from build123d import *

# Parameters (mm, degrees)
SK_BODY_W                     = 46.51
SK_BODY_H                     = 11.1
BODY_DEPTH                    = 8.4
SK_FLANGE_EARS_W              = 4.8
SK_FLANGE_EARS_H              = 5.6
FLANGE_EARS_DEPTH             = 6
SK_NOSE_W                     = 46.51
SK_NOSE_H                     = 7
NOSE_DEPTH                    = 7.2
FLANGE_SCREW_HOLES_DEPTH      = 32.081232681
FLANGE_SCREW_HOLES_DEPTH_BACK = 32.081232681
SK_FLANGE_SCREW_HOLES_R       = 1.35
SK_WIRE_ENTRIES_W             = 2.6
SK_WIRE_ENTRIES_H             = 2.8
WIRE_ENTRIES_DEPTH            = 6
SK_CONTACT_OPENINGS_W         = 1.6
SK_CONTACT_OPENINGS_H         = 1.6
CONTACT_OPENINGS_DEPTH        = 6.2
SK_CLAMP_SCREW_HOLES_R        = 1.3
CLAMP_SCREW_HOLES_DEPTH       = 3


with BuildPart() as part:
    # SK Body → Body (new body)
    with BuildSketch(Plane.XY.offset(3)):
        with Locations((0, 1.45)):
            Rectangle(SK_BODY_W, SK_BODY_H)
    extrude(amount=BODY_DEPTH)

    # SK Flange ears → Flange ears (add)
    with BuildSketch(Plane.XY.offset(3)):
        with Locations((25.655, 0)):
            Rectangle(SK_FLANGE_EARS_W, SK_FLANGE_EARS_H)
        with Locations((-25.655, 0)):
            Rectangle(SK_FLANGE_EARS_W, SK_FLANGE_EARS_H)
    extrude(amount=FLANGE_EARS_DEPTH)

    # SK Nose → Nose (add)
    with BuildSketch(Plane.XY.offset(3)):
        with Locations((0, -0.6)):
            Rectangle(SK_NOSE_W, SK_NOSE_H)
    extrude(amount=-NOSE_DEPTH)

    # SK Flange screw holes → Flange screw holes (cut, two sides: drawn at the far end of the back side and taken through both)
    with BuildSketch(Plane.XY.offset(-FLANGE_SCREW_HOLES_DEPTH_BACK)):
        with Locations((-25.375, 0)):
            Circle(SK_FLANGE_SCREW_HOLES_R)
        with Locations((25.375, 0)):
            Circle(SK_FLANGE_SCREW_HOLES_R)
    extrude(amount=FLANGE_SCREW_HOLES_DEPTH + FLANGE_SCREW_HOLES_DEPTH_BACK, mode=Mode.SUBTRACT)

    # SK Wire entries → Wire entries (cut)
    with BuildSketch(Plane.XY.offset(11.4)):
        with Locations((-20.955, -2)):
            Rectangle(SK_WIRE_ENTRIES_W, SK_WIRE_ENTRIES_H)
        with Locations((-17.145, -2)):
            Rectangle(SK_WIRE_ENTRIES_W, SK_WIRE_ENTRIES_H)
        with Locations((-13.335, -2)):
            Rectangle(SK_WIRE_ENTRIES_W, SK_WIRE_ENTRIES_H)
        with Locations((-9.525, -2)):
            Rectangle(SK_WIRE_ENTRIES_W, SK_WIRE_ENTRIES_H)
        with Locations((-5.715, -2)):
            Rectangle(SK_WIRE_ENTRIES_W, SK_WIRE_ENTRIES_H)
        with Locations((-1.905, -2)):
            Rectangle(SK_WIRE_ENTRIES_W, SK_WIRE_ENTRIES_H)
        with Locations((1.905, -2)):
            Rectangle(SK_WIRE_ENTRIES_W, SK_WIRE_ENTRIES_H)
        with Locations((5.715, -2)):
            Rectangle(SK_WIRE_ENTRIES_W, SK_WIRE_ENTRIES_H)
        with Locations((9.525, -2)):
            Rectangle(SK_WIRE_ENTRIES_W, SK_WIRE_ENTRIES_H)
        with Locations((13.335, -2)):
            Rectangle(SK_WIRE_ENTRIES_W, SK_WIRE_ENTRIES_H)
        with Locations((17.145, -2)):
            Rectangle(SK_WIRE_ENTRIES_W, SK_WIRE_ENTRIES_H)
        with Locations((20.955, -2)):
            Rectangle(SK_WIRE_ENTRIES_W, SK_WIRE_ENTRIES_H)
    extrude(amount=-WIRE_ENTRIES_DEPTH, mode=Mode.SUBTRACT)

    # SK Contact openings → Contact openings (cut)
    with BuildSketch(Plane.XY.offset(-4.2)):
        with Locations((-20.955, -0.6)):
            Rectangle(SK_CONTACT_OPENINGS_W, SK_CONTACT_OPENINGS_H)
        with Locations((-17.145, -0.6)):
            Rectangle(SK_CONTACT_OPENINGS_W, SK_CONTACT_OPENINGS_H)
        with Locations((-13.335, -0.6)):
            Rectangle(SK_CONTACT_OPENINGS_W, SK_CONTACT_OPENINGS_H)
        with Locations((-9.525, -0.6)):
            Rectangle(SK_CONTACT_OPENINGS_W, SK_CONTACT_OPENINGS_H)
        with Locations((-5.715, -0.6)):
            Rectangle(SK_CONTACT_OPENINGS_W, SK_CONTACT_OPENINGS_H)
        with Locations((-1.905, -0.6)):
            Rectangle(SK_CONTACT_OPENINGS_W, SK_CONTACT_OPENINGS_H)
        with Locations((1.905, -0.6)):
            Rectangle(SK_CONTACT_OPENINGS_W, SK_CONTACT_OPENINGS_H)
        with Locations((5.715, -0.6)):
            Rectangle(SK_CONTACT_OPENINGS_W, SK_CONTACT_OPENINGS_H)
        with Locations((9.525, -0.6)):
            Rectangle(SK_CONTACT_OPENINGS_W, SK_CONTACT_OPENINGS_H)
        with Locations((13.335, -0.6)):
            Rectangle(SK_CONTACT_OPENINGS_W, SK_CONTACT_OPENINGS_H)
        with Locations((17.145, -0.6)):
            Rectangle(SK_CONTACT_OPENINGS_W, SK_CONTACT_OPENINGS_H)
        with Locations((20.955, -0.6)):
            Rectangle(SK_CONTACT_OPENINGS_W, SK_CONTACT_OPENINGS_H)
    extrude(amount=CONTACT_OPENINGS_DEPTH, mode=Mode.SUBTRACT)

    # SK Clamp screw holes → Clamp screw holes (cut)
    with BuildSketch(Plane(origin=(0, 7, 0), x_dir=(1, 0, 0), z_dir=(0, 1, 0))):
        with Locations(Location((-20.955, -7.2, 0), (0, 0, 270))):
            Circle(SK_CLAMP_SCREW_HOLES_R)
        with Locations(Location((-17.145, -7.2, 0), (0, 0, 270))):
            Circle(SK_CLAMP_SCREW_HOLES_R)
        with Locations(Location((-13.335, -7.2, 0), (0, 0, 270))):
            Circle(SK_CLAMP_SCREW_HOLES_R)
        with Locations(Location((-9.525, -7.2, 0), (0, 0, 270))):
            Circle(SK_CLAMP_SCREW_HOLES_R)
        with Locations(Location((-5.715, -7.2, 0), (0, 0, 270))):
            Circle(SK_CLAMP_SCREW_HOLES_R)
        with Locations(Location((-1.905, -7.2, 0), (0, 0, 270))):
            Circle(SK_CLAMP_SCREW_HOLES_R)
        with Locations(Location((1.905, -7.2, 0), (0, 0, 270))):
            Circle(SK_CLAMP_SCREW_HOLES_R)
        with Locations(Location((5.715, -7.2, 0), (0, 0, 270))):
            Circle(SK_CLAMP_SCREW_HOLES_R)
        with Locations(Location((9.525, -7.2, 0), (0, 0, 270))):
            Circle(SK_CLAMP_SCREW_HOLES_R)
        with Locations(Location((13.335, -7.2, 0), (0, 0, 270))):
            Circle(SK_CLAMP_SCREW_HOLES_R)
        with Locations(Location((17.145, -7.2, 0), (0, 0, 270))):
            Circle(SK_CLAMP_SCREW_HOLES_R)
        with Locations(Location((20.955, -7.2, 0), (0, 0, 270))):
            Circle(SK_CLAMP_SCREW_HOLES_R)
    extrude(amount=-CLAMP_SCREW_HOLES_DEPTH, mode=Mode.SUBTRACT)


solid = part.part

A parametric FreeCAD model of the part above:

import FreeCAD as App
import Part
import Sketcher

V = App.Vector

doc = App.newDocument("Part")
body = doc.addObject("PartDesign::Body", "Body")

sketch1 = doc.addObject("Sketcher::SketchObject", "Sketch")
body.addObject(sketch1)
sketch1.AttachmentSupport = (doc.XY_Plane, [""])
sketch1.MapMode = "FlatFace"
sketch1.AttachmentOffset = App.Placement(V(0, 0, 3), App.Rotation())
sketch1.addGeometry(Part.LineSegment(V(-23, 7, 0), V(-23, -4, 0)), False)
sketch1.addGeometry(Part.LineSegment(V(-23, -4, 0), V(23, -4, 0)), False)
sketch1.addGeometry(Part.LineSegment(V(23, -4, 0), V(23, 7, 0)), False)
sketch1.addGeometry(Part.LineSegment(V(23, 7, 0), V(-23, 7, 0)), False)
sketch1.addConstraint(Sketcher.Constraint("Coincident", 0, 2, 1, 1))
sketch1.addConstraint(Sketcher.Constraint("Coincident", 1, 2, 2, 1))
sketch1.addConstraint(Sketcher.Constraint("Coincident", 2, 2, 3, 1))
sketch1.addConstraint(Sketcher.Constraint("Coincident", 3, 2, 0, 1))
sketch1.addConstraint(Sketcher.Constraint("Vertical", 0))
sketch1.addConstraint(Sketcher.Constraint("Horizontal", 1))
sketch1.addConstraint(Sketcher.Constraint("Vertical", 2))
sketch1.addConstraint(Sketcher.Constraint("Horizontal", 3))
sketch1.addConstraint(Sketcher.Constraint("DistanceY", 0, 2, 0, 1, 11.1))
sketch1.addConstraint(Sketcher.Constraint("DistanceY", -1, 1, 2, 2, 7.0))
sketch1.addConstraint(Sketcher.Constraint("DistanceX", 1, 1, 1, 2, 46.51))
sketch1.addConstraint(Sketcher.Constraint("DistanceX", 0, 2, -1, 1, 23.255))
pad1 = doc.addObject("PartDesign::Pad", "Pad")
body.addObject(pad1)
pad1.Profile = sketch1
pad1.Length = 8.4

sketch2 = doc.addObject("Sketcher::SketchObject", "Sketch001")
body.addObject(sketch2)
sketch2.AttachmentSupport = (doc.XY_Plane, [""])
sketch2.MapMode = "FlatFace"
sketch2.AttachmentOffset = App.Placement(V(0, 0, 3), App.Rotation())
sketch2.addGeometry(Part.LineSegment(V(23.3, 2.8, 0), V(23.3, -2.8, 0)), False)
sketch2.addGeometry(Part.LineSegment(V(23.3, -2.8, 0), V(28.1, -2.8, 0)), False)
sketch2.addGeometry(Part.LineSegment(V(28.1, -2.8, 0), V(28.1, 2.8, 0)), False)
sketch2.addGeometry(Part.LineSegment(V(28.1, 2.8, 0), V(23.3, 2.8, 0)), False)
sketch2.addGeometry(Part.LineSegment(V(-28.1, 2.8, 0), V(-28.1, -2.8, 0)), False)
sketch2.addGeometry(Part.LineSegment(V(-28.1, -2.8, 0), V(-23.3, -2.8, 0)), False)
sketch2.addGeometry(Part.LineSegment(V(-23.3, -2.8, 0), V(-23.3, 2.8, 0)), False)
sketch2.addGeometry(Part.LineSegment(V(-23.3, 2.8, 0), V(-28.1, 2.8, 0)), False)
sketch2.addConstraint(Sketcher.Constraint("Coincident", 0, 2, 1, 1))
sketch2.addConstraint(Sketcher.Constraint("Coincident", 1, 2, 2, 1))
sketch2.addConstraint(Sketcher.Constraint("Coincident", 2, 2, 3, 1))
sketch2.addConstraint(Sketcher.Constraint("Coincident", 3, 2, 0, 1))
sketch2.addConstraint(Sketcher.Constraint("Coincident", 4, 2, 5, 1))
sketch2.addConstraint(Sketcher.Constraint("Coincident", 5, 2, 6, 1))
sketch2.addConstraint(Sketcher.Constraint("Coincident", 6, 2, 7, 1))
sketch2.addConstraint(Sketcher.Constraint("Coincident", 7, 2, 4, 1))
sketch2.addConstraint(Sketcher.Constraint("Vertical", 0))
sketch2.addConstraint(Sketcher.Constraint("Horizontal", 1))
sketch2.addConstraint(Sketcher.Constraint("Vertical", 2))
sketch2.addConstraint(Sketcher.Constraint("Horizontal", 3))
sketch2.addConstraint(Sketcher.Constraint("Vertical", 4))
sketch2.addConstraint(Sketcher.Constraint("Horizontal", 5))
sketch2.addConstraint(Sketcher.Constraint("Vertical", 6))
sketch2.addConstraint(Sketcher.Constraint("Horizontal", 7))
sketch2.addConstraint(Sketcher.Constraint("Symmetric", 2, 2, 4, 2, -1, 1))
sketch2.addConstraint(Sketcher.Constraint("Symmetric", 0, 2, 6, 2, -1, 1))
sketch2.addConstraint(Sketcher.Constraint("Horizontal", 1, 2, 4, 2))
sketch2.addConstraint(Sketcher.Constraint("DistanceX", 1, 1, 1, 2, 4.8))
sketch2.addConstraint(Sketcher.Constraint("DistanceY", 0, 2, 0, 1, 5.6))
sketch2.addConstraint(Sketcher.Constraint("DistanceX", 4, 2, 0, 2, 51.31))
pad2 = doc.addObject("PartDesign::Pad", "Pad001")
body.addObject(pad2)
pad2.Profile = sketch2
pad2.Length = 6

sketch3 = doc.addObject("Sketcher::SketchObject", "Sketch002")
body.addObject(sketch3)
sketch3.AttachmentSupport = (doc.XY_Plane, [""])
sketch3.MapMode = "FlatFace"
sketch3.AttachmentOffset = App.Placement(V(0, 0, 3), App.Rotation())
sketch3.addGeometry(Part.LineSegment(V(-23, 3, 0), V(-23, -4, 0)), False)
sketch3.addGeometry(Part.LineSegment(V(-23, -4, 0), V(23, -4, 0)), False)
sketch3.addGeometry(Part.LineSegment(V(23, -4, 0), V(23, 3, 0)), False)
sketch3.addGeometry(Part.LineSegment(V(23, 3, 0), V(-23, 3, 0)), False)
sketch3.addConstraint(Sketcher.Constraint("Coincident", 0, 2, 1, 1))
sketch3.addConstraint(Sketcher.Constraint("Coincident", 1, 2, 2, 1))
sketch3.addConstraint(Sketcher.Constraint("Coincident", 2, 2, 3, 1))
sketch3.addConstraint(Sketcher.Constraint("Coincident", 3, 2, 0, 1))
sketch3.addConstraint(Sketcher.Constraint("Vertical", 0))
sketch3.addConstraint(Sketcher.Constraint("Horizontal", 1))
sketch3.addConstraint(Sketcher.Constraint("Vertical", 2))
sketch3.addConstraint(Sketcher.Constraint("Horizontal", 3))
sketch3.addConstraint(Sketcher.Constraint("DistanceY", 0, 2, 0, 1, 7.0))
sketch3.addConstraint(Sketcher.Constraint("DistanceX", 1, 1, 1, 2, 46.51))
sketch3.addConstraint(Sketcher.Constraint("DistanceY", 0, 2, -1, 1, 4.1))
sketch3.addConstraint(Sketcher.Constraint("DistanceX", 0, 2, -1, 1, 23.255))
pad3 = doc.addObject("PartDesign::Pad", "Pad002")
body.addObject(pad3)
pad3.Profile = sketch3
pad3.Length = 7.2
pad3.Reversed = True

sketch4 = doc.addObject("Sketcher::SketchObject", "Sketch003")
body.addObject(sketch4)
sketch4.AttachmentSupport = (doc.XY_Plane, [""])
sketch4.MapMode = "FlatFace"
sketch4.addGeometry(Part.Circle(V(-25.4, 0, 0), V(0, 0, 1), 1.4), False)
sketch4.addGeometry(Part.Circle(V(25.4, 0, 0), V(0, 0, 1), 1.4), False)
sketch4.addConstraint(Sketcher.Constraint("Equal", 0, 1))
sketch4.addConstraint(Sketcher.Constraint("Symmetric", 0, 3, 1, 3, -1, 1))
sketch4.addConstraint(Sketcher.Constraint("PointOnObject", 0, 3, -1))
sketch4.addConstraint(Sketcher.Constraint("Diameter", 0, 2.7))
sketch4.addConstraint(Sketcher.Constraint("DistanceX", 0, 3, 1, 3, 50.75))
pocket1 = doc.addObject("PartDesign::Pocket", "Pocket")
body.addObject(pocket1)
pocket1.Profile = sketch4
pocket1.Type = "ThroughAll"
pocket1.Midplane = True

sketch5 = doc.addObject("Sketcher::SketchObject", "Sketch004")
body.addObject(sketch5)
sketch5.AttachmentSupport = (doc.XY_Plane, [""])
sketch5.MapMode = "FlatFace"
sketch5.AttachmentOffset = App.Placement(V(0, 0, 11.4), App.Rotation())
sketch5.addGeometry(Part.LineSegment(V(-22.3, -0.6, 0), V(-22.3, -3.4, 0)), False)
sketch5.addGeometry(Part.LineSegment(V(-22.3, -3.4, 0), V(-19.7, -3.4, 0)), False)
sketch5.addGeometry(Part.LineSegment(V(-19.7, -3.4, 0), V(-19.7, -0.6, 0)), False)
sketch5.addGeometry(Part.LineSegment(V(-19.7, -0.6, 0), V(-22.3, -0.6, 0)), False)
sketch5.addGeometry(Part.LineSegment(V(-18.4, -0.6, 0), V(-18.4, -3.4, 0)), False)
sketch5.addGeometry(Part.LineSegment(V(-18.4, -3.4, 0), V(-15.8, -3.4, 0)), False)
sketch5.addGeometry(Part.LineSegment(V(-15.8, -3.4, 0), V(-15.8, -0.6, 0)), False)
sketch5.addGeometry(Part.LineSegment(V(-15.8, -0.6, 0), V(-18.4, -0.6, 0)), False)
sketch5.addGeometry(Part.LineSegment(V(-14.6, -0.6, 0), V(-14.6, -3.4, 0)), False)
sketch5.addGeometry(Part.LineSegment(V(-14.6, -3.4, 0), V(-12, -3.4, 0)), False)
sketch5.addGeometry(Part.LineSegment(V(-12, -3.4, 0), V(-12, -0.6, 0)), False)
sketch5.addGeometry(Part.LineSegment(V(-12, -0.6, 0), V(-14.6, -0.6, 0)), False)
sketch5.addGeometry(Part.LineSegment(V(-10.8, -0.6, 0), V(-10.8, -3.4, 0)), False)
sketch5.addGeometry(Part.LineSegment(V(-10.8, -3.4, 0), V(-8.2, -3.4, 0)), False)
sketch5.addGeometry(Part.LineSegment(V(-8.2, -3.4, 0), V(-8.2, -0.6, 0)), False)
sketch5.addGeometry(Part.LineSegment(V(-8.2, -0.6, 0), V(-10.8, -0.6, 0)), False)
sketch5.addGeometry(Part.LineSegment(V(-7, -0.6, 0), V(-7, -3.4, 0)), False)
sketch5.addGeometry(Part.LineSegment(V(-7, -3.4, 0), V(-4.4, -3.4, 0)), False)
sketch5.addGeometry(Part.LineSegment(V(-4.4, -3.4, 0), V(-4.4, -0.6, 0)), False)
sketch5.addGeometry(Part.LineSegment(V(-4.4, -0.6, 0), V(-7, -0.6, 0)), False)
sketch5.addGeometry(Part.LineSegment(V(-3.2, -0.6, 0), V(-3.2, -3.4, 0)), False)
sketch5.addGeometry(Part.LineSegment(V(-3.2, -3.4, 0), V(-0.6, -3.4, 0)), False)
sketch5.addGeometry(Part.LineSegment(V(-0.6, -3.4, 0), V(-0.6, -0.6, 0)), False)
sketch5.addGeometry(Part.LineSegment(V(-0.6, -0.6, 0), V(-3.2, -0.6, 0)), False)
sketch5.addGeometry(Part.LineSegment(V(0.6, -0.6, 0), V(0.6, -3.4, 0)), False)
sketch5.addGeometry(Part.LineSegment(V(0.6, -3.4, 0), V(3.2, -3.4, 0)), False)
sketch5.addGeometry(Part.LineSegment(V(3.2, -3.4, 0), V(3.2, -0.6, 0)), False)
sketch5.addGeometry(Part.LineSegment(V(3.2, -0.6, 0), V(0.6, -0.6, 0)), False)
sketch5.addGeometry(Part.LineSegment(V(4.4, -0.6, 0), V(4.4, -3.4, 0)), False)
sketch5.addGeometry(Part.LineSegment(V(4.4, -3.4, 0), V(7, -3.4, 0)), False)
sketch5.addGeometry(Part.LineSegment(V(7, -3.4, 0), V(7, -0.6, 0)), False)
sketch5.addGeometry(Part.LineSegment(V(7, -0.6, 0), V(4.4, -0.6, 0)), False)
sketch5.addGeometry(Part.LineSegment(V(8.2, -0.6, 0), V(8.2, -3.4, 0)), False)
sketch5.addGeometry(Part.LineSegment(V(8.2, -3.4, 0), V(10.8, -3.4, 0)), False)
sketch5.addGeometry(Part.LineSegment(V(10.8, -3.4, 0), V(10.8, -0.6, 0)), False)
sketch5.addGeometry(Part.LineSegment(V(10.8, -0.6, 0), V(8.2, -0.6, 0)), False)
sketch5.addGeometry(Part.LineSegment(V(12, -0.6, 0), V(12, -3.4, 0)), False)
sketch5.addGeometry(Part.LineSegment(V(12, -3.4, 0), V(14.6, -3.4, 0)), False)
sketch5.addGeometry(Part.LineSegment(V(14.6, -3.4, 0), V(14.6, -0.6, 0)), False)
sketch5.addGeometry(Part.LineSegment(V(14.6, -0.6, 0), V(12, -0.6, 0)), False)
sketch5.addGeometry(Part.LineSegment(V(15.8, -0.6, 0), V(15.8, -3.4, 0)), False)
sketch5.addGeometry(Part.LineSegment(V(15.8, -3.4, 0), V(18.4, -3.4, 0)), False)
sketch5.addGeometry(Part.LineSegment(V(18.4, -3.4, 0), V(18.4, -0.6, 0)), False)
sketch5.addGeometry(Part.LineSegment(V(18.4, -0.6, 0), V(15.8, -0.6, 0)), False)
sketch5.addGeometry(Part.LineSegment(V(19.7, -0.6, 0), V(19.7, -3.4, 0)), False)
sketch5.addGeometry(Part.LineSegment(V(19.7, -3.4, 0), V(22.3, -3.4, 0)), False)
sketch5.addGeometry(Part.LineSegment(V(22.3, -3.4, 0), V(22.3, -0.6, 0)), False)
sketch5.addGeometry(Part.LineSegment(V(22.3, -0.6, 0), V(19.7, -0.6, 0)), False)
sketch5.addConstraint(Sketcher.Constraint("Coincident", 0, 2, 1, 1))
sketch5.addConstraint(Sketcher.Constraint("Coincident", 1, 2, 2, 1))
sketch5.addConstraint(Sketcher.Constraint("Coincident", 2, 2, 3, 1))
sketch5.addConstraint(Sketcher.Constraint("Coincident", 3, 2, 0, 1))
sketch5.addConstraint(Sketcher.Constraint("Coincident", 4, 2, 5, 1))
sketch5.addConstraint(Sketcher.Constraint("Coincident", 5, 2, 6, 1))
sketch5.addConstraint(Sketcher.Constraint("Coincident", 6, 2, 7, 1))
sketch5.addConstraint(Sketcher.Constraint("Coincident", 7, 2, 4, 1))
sketch5.addConstraint(Sketcher.Constraint("Coincident", 8, 2, 9, 1))
sketch5.addConstraint(Sketcher.Constraint("Coincident", 9, 2, 10, 1))
sketch5.addConstraint(Sketcher.Constraint("Coincident", 10, 2, 11, 1))
sketch5.addConstraint(Sketcher.Constraint("Coincident", 11, 2, 8, 1))
sketch5.addConstraint(Sketcher.Constraint("Coincident", 12, 2, 13, 1))
sketch5.addConstraint(Sketcher.Constraint("Coincident", 13, 2, 14, 1))
sketch5.addConstraint(Sketcher.Constraint("Coincident", 14, 2, 15, 1))
sketch5.addConstraint(Sketcher.Constraint("Coincident", 15, 2, 12, 1))
sketch5.addConstraint(Sketcher.Constraint("Coincident", 16, 2, 17, 1))
sketch5.addConstraint(Sketcher.Constraint("Coincident", 17, 2, 18, 1))
sketch5.addConstraint(Sketcher.Constraint("Coincident", 18, 2, 19, 1))
sketch5.addConstraint(Sketcher.Constraint("Coincident", 19, 2, 16, 1))
sketch5.addConstraint(Sketcher.Constraint("Coincident", 20, 2, 21, 1))
sketch5.addConstraint(Sketcher.Constraint("Coincident", 21, 2, 22, 1))
sketch5.addConstraint(Sketcher.Constraint("Coincident", 22, 2, 23, 1))
sketch5.addConstraint(Sketcher.Constraint("Coincident", 23, 2, 20, 1))
sketch5.addConstraint(Sketcher.Constraint("Coincident", 24, 2, 25, 1))
sketch5.addConstraint(Sketcher.Constraint("Coincident", 25, 2, 26, 1))
sketch5.addConstraint(Sketcher.Constraint("Coincident", 26, 2, 27, 1))
sketch5.addConstraint(Sketcher.Constraint("Coincident", 27, 2, 24, 1))
sketch5.addConstraint(Sketcher.Constraint("Coincident", 28, 2, 29, 1))
sketch5.addConstraint(Sketcher.Constraint("Coincident", 29, 2, 30, 1))
sketch5.addConstraint(Sketcher.Constraint("Coincident", 30, 2, 31, 1))
sketch5.addConstraint(Sketcher.Constraint("Coincident", 31, 2, 28, 1))
sketch5.addConstraint(Sketcher.Constraint("Coincident", 32, 2, 33, 1))
sketch5.addConstraint(Sketcher.Constraint("Coincident", 33, 2, 34, 1))
sketch5.addConstraint(Sketcher.Constraint("Coincident", 34, 2, 35, 1))
sketch5.addConstraint(Sketcher.Constraint("Coincident", 35, 2, 32, 1))
sketch5.addConstraint(Sketcher.Constraint("Coincident", 36, 2, 37, 1))
sketch5.addConstraint(Sketcher.Constraint("Coincident", 37, 2, 38, 1))
sketch5.addConstraint(Sketcher.Constraint("Coincident", 38, 2, 39, 1))
sketch5.addConstraint(Sketcher.Constraint("Coincident", 39, 2, 36, 1))
sketch5.addConstraint(Sketcher.Constraint("Coincident", 40, 2, 41, 1))
sketch5.addConstraint(Sketcher.Constraint("Coincident", 41, 2, 42, 1))
sketch5.addConstraint(Sketcher.Constraint("Coincident", 42, 2, 43, 1))
sketch5.addConstraint(Sketcher.Constraint("Coincident", 43, 2, 40, 1))
sketch5.addConstraint(Sketcher.Constraint("Coincident", 44, 2, 45, 1))
sketch5.addConstraint(Sketcher.Constraint("Coincident", 45, 2, 46, 1))
sketch5.addConstraint(Sketcher.Constraint("Coincident", 46, 2, 47, 1))
sketch5.addConstraint(Sketcher.Constraint("Coincident", 47, 2, 44, 1))
sketch5.addConstraint(Sketcher.Constraint("Vertical", 0))
sketch5.addConstraint(Sketcher.Constraint("Horizontal", 1))
sketch5.addConstraint(Sketcher.Constraint("Vertical", 2))
sketch5.addConstraint(Sketcher.Constraint("Horizontal", 3))
sketch5.addConstraint(Sketcher.Constraint("Vertical", 4))
sketch5.addConstraint(Sketcher.Constraint("Horizontal", 5))
sketch5.addConstraint(Sketcher.Constraint("Vertical", 6))
sketch5.addConstraint(Sketcher.Constraint("Horizontal", 7))
sketch5.addConstraint(Sketcher.Constraint("Vertical", 8))
sketch5.addConstraint(Sketcher.Constraint("Horizontal", 9))
sketch5.addConstraint(Sketcher.Constraint("Vertical", 10))
sketch5.addConstraint(Sketcher.Constraint("Horizontal", 11))
sketch5.addConstraint(Sketcher.Constraint("Vertical", 12))
sketch5.addConstraint(Sketcher.Constraint("Horizontal", 13))
sketch5.addConstraint(Sketcher.Constraint("Vertical", 14))
sketch5.addConstraint(Sketcher.Constraint("Horizontal", 15))
sketch5.addConstraint(Sketcher.Constraint("Vertical", 16))
sketch5.addConstraint(Sketcher.Constraint("Horizontal", 17))
sketch5.addConstraint(Sketcher.Constraint("Vertical", 18))
sketch5.addConstraint(Sketcher.Constraint("Horizontal", 19))
sketch5.addConstraint(Sketcher.Constraint("Vertical", 20))
sketch5.addConstraint(Sketcher.Constraint("Horizontal", 21))
sketch5.addConstraint(Sketcher.Constraint("Vertical", 22))
sketch5.addConstraint(Sketcher.Constraint("Horizontal", 23))
sketch5.addConstraint(Sketcher.Constraint("Vertical", 24))
sketch5.addConstraint(Sketcher.Constraint("Horizontal", 25))
sketch5.addConstraint(Sketcher.Constraint("Vertical", 26))
sketch5.addConstraint(Sketcher.Constraint("Horizontal", 27))
sketch5.addConstraint(Sketcher.Constraint("Vertical", 28))
sketch5.addConstraint(Sketcher.Constraint("Horizontal", 29))
sketch5.addConstraint(Sketcher.Constraint("Vertical", 30))
sketch5.addConstraint(Sketcher.Constraint("Horizontal", 31))
sketch5.addConstraint(Sketcher.Constraint("Vertical", 32))
sketch5.addConstraint(Sketcher.Constraint("Horizontal", 33))
sketch5.addConstraint(Sketcher.Constraint("Vertical", 34))
sketch5.addConstraint(Sketcher.Constraint("Horizontal", 35))
sketch5.addConstraint(Sketcher.Constraint("Vertical", 36))
sketch5.addConstraint(Sketcher.Constraint("Horizontal", 37))
sketch5.addConstraint(Sketcher.Constraint("Vertical", 38))
sketch5.addConstraint(Sketcher.Constraint("Horizontal", 39))
sketch5.addConstraint(Sketcher.Constraint("Vertical", 40))
sketch5.addConstraint(Sketcher.Constraint("Horizontal", 41))
sketch5.addConstraint(Sketcher.Constraint("Vertical", 42))
sketch5.addConstraint(Sketcher.Constraint("Horizontal", 43))
sketch5.addConstraint(Sketcher.Constraint("Vertical", 44))
sketch5.addConstraint(Sketcher.Constraint("Horizontal", 45))
sketch5.addConstraint(Sketcher.Constraint("Vertical", 46))
sketch5.addConstraint(Sketcher.Constraint("Horizontal", 47))
sketch5.addConstraint(Sketcher.Constraint("Symmetric", 21, 2, 24, 2, -2))
sketch5.addConstraint(Sketcher.Constraint("Symmetric", 23, 2, 26, 2, -2))
sketch5.addConstraint(Sketcher.Constraint("Symmetric", 17, 2, 28, 2, -2))
sketch5.addConstraint(Sketcher.Constraint("Symmetric", 19, 2, 30, 2, -2))
sketch5.addConstraint(Sketcher.Constraint("Symmetric", 13, 2, 32, 2, -2))
sketch5.addConstraint(Sketcher.Constraint("Symmetric", 15, 2, 34, 2, -2))
sketch5.addConstraint(Sketcher.Constraint("Symmetric", 9, 2, 36, 2, -2))
sketch5.addConstraint(Sketcher.Constraint("Symmetric", 11, 2, 38, 2, -2))
sketch5.addConstraint(Sketcher.Constraint("Symmetric", 5, 2, 40, 2, -2))
sketch5.addConstraint(Sketcher.Constraint("Symmetric", 7, 2, 42, 2, -2))
sketch5.addConstraint(Sketcher.Constraint("Symmetric", 1, 2, 44, 2, -2))
sketch5.addConstraint(Sketcher.Constraint("Symmetric", 3, 2, 46, 2, -2))
sketch5.addConstraint(Sketcher.Constraint("Horizontal", 1, 2, 4, 2))
sketch5.addConstraint(Sketcher.Constraint("Horizontal", 3, 2, 6, 2))
sketch5.addConstraint(Sketcher.Constraint("Horizontal", 5, 2, 8, 2))
sketch5.addConstraint(Sketcher.Constraint("Horizontal", 7, 2, 10, 2))
sketch5.addConstraint(Sketcher.Constraint("Horizontal", 9, 2, 12, 2))
sketch5.addConstraint(Sketcher.Constraint("Horizontal", 11, 2, 14, 2))
sketch5.addConstraint(Sketcher.Constraint("Horizontal", 13, 2, 16, 2))
sketch5.addConstraint(Sketcher.Constraint("Horizontal", 15, 2, 18, 2))
sketch5.addConstraint(Sketcher.Constraint("Horizontal", 17, 2, 20, 2))
sketch5.addConstraint(Sketcher.Constraint("Horizontal", 19, 2, 22, 2))
sketch5.addConstraint(Sketcher.Constraint("Equal", 3, 5))
sketch5.addConstraint(Sketcher.Constraint("Equal", 7, 9))
sketch5.addConstraint(Sketcher.Constraint("Equal", 11, 13))
sketch5.addConstraint(Sketcher.Constraint("Equal", 15, 17))
sketch5.addConstraint(Sketcher.Constraint("Equal", 19, 21))
sketch5.addConstraint(Sketcher.Constraint("DistanceX", 1, 1, 1, 2, 2.6))
sketch5.addConstraint(Sketcher.Constraint("DistanceY", 0, 2, 0, 1, 2.8))
sketch5.addConstraint(Sketcher.Constraint("DistanceY", 0, 2, -1, 1, 3.4))
sketch5.addConstraint(Sketcher.Constraint("DistanceX", 1, 2, 4, 2, 1.21))
sketch5.addConstraint(Sketcher.Constraint("DistanceX", 5, 2, 8, 2, 1.21))
sketch5.addConstraint(Sketcher.Constraint("DistanceX", 9, 2, 12, 2, 1.21))
sketch5.addConstraint(Sketcher.Constraint("DistanceX", 13, 2, 16, 2, 1.21))
sketch5.addConstraint(Sketcher.Constraint("DistanceX", 17, 2, 20, 2, 1.21))
sketch5.addConstraint(Sketcher.Constraint("DistanceX", 21, 2, 24, 2, 1.21))
pocket2 = doc.addObject("PartDesign::Pocket", "Pocket001")
body.addObject(pocket2)
pocket2.Profile = sketch5
pocket2.Length = 6

sketch6 = doc.addObject("Sketcher::SketchObject", "Sketch005")
body.addObject(sketch6)
sketch6.AttachmentSupport = (doc.XY_Plane, [""])
sketch6.MapMode = "FlatFace"
sketch6.AttachmentOffset = App.Placement(V(0, 0, -4.2), App.Rotation())
sketch6.addGeometry(Part.LineSegment(V(-21.8, 0.2, 0), V(-21.8, -1.4, 0)), False)
sketch6.addGeometry(Part.LineSegment(V(-21.8, -1.4, 0), V(-20.2, -1.4, 0)), False)
sketch6.addGeometry(Part.LineSegment(V(-20.2, -1.4, 0), V(-20.2, 0.2, 0)), False)
sketch6.addGeometry(Part.LineSegment(V(-20.2, 0.2, 0), V(-21.8, 0.2, 0)), False)
sketch6.addGeometry(Part.LineSegment(V(-17.9, 0.2, 0), V(-17.9, -1.4, 0)), False)
sketch6.addGeometry(Part.LineSegment(V(-17.9, -1.4, 0), V(-16.3, -1.4, 0)), False)
sketch6.addGeometry(Part.LineSegment(V(-16.3, -1.4, 0), V(-16.3, 0.2, 0)), False)
sketch6.addGeometry(Part.LineSegment(V(-16.3, 0.2, 0), V(-17.9, 0.2, 0)), False)
sketch6.addGeometry(Part.LineSegment(V(-14.1, 0.2, 0), V(-14.1, -1.4, 0)), False)
sketch6.addGeometry(Part.LineSegment(V(-14.1, -1.4, 0), V(-12.5, -1.4, 0)), False)
sketch6.addGeometry(Part.LineSegment(V(-12.5, -1.4, 0), V(-12.5, 0.2, 0)), False)
sketch6.addGeometry(Part.LineSegment(V(-12.5, 0.2, 0), V(-14.1, 0.2, 0)), False)
sketch6.addGeometry(Part.LineSegment(V(-10.3, 0.2, 0), V(-10.3, -1.4, 0)), False)
sketch6.addGeometry(Part.LineSegment(V(-10.3, -1.4, 0), V(-8.7, -1.4, 0)), False)
sketch6.addGeometry(Part.LineSegment(V(-8.7, -1.4, 0), V(-8.7, 0.2, 0)), False)
sketch6.addGeometry(Part.LineSegment(V(-8.7, 0.2, 0), V(-10.3, 0.2, 0)), False)
sketch6.addGeometry(Part.LineSegment(V(-6.5, 0.2, 0), V(-6.5, -1.4, 0)), False)
sketch6.addGeometry(Part.LineSegment(V(-6.5, -1.4, 0), V(-4.9, -1.4, 0)), False)
sketch6.addGeometry(Part.LineSegment(V(-4.9, -1.4, 0), V(-4.9, 0.2, 0)), False)
sketch6.addGeometry(Part.LineSegment(V(-4.9, 0.2, 0), V(-6.5, 0.2, 0)), False)
sketch6.addGeometry(Part.LineSegment(V(-2.7, 0.2, 0), V(-2.7, -1.4, 0)), False)
sketch6.addGeometry(Part.LineSegment(V(-2.7, -1.4, 0), V(-1.1, -1.4, 0)), False)
sketch6.addGeometry(Part.LineSegment(V(-1.1, -1.4, 0), V(-1.1, 0.2, 0)), False)
sketch6.addGeometry(Part.LineSegment(V(-1.1, 0.2, 0), V(-2.7, 0.2, 0)), False)
sketch6.addGeometry(Part.LineSegment(V(1.1, 0.2, 0), V(1.1, -1.4, 0)), False)
sketch6.addGeometry(Part.LineSegment(V(1.1, -1.4, 0), V(2.7, -1.4, 0)), False)
sketch6.addGeometry(Part.LineSegment(V(2.7, -1.4, 0), V(2.7, 0.2, 0)), False)
sketch6.addGeometry(Part.LineSegment(V(2.7, 0.2, 0), V(1.1, 0.2, 0)), False)
sketch6.addGeometry(Part.LineSegment(V(4.9, 0.2, 0), V(4.9, -1.4, 0)), False)
sketch6.addGeometry(Part.LineSegment(V(4.9, -1.4, 0), V(6.5, -1.4, 0)), False)
sketch6.addGeometry(Part.LineSegment(V(6.5, -1.4, 0), V(6.5, 0.2, 0)), False)
sketch6.addGeometry(Part.LineSegment(V(6.5, 0.2, 0), V(4.9, 0.2, 0)), False)
sketch6.addGeometry(Part.LineSegment(V(8.7, 0.2, 0), V(8.7, -1.4, 0)), False)
sketch6.addGeometry(Part.LineSegment(V(8.7, -1.4, 0), V(10.3, -1.4, 0)), False)
sketch6.addGeometry(Part.LineSegment(V(10.3, -1.4, 0), V(10.3, 0.2, 0)), False)
sketch6.addGeometry(Part.LineSegment(V(10.3, 0.2, 0), V(8.7, 0.2, 0)), False)
sketch6.addGeometry(Part.LineSegment(V(12.5, 0.2, 0), V(12.5, -1.4, 0)), False)
sketch6.addGeometry(Part.LineSegment(V(12.5, -1.4, 0), V(14.1, -1.4, 0)), False)
sketch6.addGeometry(Part.LineSegment(V(14.1, -1.4, 0), V(14.1, 0.2, 0)), False)
sketch6.addGeometry(Part.LineSegment(V(14.1, 0.2, 0), V(12.5, 0.2, 0)), False)
sketch6.addGeometry(Part.LineSegment(V(16.3, 0.2, 0), V(16.3, -1.4, 0)), False)
sketch6.addGeometry(Part.LineSegment(V(16.3, -1.4, 0), V(17.9, -1.4, 0)), False)
sketch6.addGeometry(Part.LineSegment(V(17.9, -1.4, 0), V(17.9, 0.2, 0)), False)
sketch6.addGeometry(Part.LineSegment(V(17.9, 0.2, 0), V(16.3, 0.2, 0)), False)
sketch6.addGeometry(Part.LineSegment(V(20.2, 0.2, 0), V(20.2, -1.4, 0)), False)
sketch6.addGeometry(Part.LineSegment(V(20.2, -1.4, 0), V(21.8, -1.4, 0)), False)
sketch6.addGeometry(Part.LineSegment(V(21.8, -1.4, 0), V(21.8, 0.2, 0)), False)
sketch6.addGeometry(Part.LineSegment(V(21.8, 0.2, 0), V(20.2, 0.2, 0)), False)
sketch6.addConstraint(Sketcher.Constraint("Coincident", 0, 2, 1, 1))
sketch6.addConstraint(Sketcher.Constraint("Coincident", 1, 2, 2, 1))
sketch6.addConstraint(Sketcher.Constraint("Coincident", 2, 2, 3, 1))
sketch6.addConstraint(Sketcher.Constraint("Coincident", 3, 2, 0, 1))
sketch6.addConstraint(Sketcher.Constraint("Coincident", 4, 2, 5, 1))
sketch6.addConstraint(Sketcher.Constraint("Coincident", 5, 2, 6, 1))
sketch6.addConstraint(Sketcher.Constraint("Coincident", 6, 2, 7, 1))
sketch6.addConstraint(Sketcher.Constraint("Coincident", 7, 2, 4, 1))
sketch6.addConstraint(Sketcher.Constraint("Coincident", 8, 2, 9, 1))
sketch6.addConstraint(Sketcher.Constraint("Coincident", 9, 2, 10, 1))
sketch6.addConstraint(Sketcher.Constraint("Coincident", 10, 2, 11, 1))
sketch6.addConstraint(Sketcher.Constraint("Coincident", 11, 2, 8, 1))
sketch6.addConstraint(Sketcher.Constraint("Coincident", 12, 2, 13, 1))
sketch6.addConstraint(Sketcher.Constraint("Coincident", 13, 2, 14, 1))
sketch6.addConstraint(Sketcher.Constraint("Coincident", 14, 2, 15, 1))
sketch6.addConstraint(Sketcher.Constraint("Coincident", 15, 2, 12, 1))
sketch6.addConstraint(Sketcher.Constraint("Coincident", 16, 2, 17, 1))
sketch6.addConstraint(Sketcher.Constraint("Coincident", 17, 2, 18, 1))
sketch6.addConstraint(Sketcher.Constraint("Coincident", 18, 2, 19, 1))
sketch6.addConstraint(Sketcher.Constraint("Coincident", 19, 2, 16, 1))
sketch6.addConstraint(Sketcher.Constraint("Coincident", 20, 2, 21, 1))
sketch6.addConstraint(Sketcher.Constraint("Coincident", 21, 2, 22, 1))
sketch6.addConstraint(Sketcher.Constraint("Coincident", 22, 2, 23, 1))
sketch6.addConstraint(Sketcher.Constraint("Coincident", 23, 2, 20, 1))
sketch6.addConstraint(Sketcher.Constraint("Coincident", 24, 2, 25, 1))
sketch6.addConstraint(Sketcher.Constraint("Coincident", 25, 2, 26, 1))
sketch6.addConstraint(Sketcher.Constraint("Coincident", 26, 2, 27, 1))
sketch6.addConstraint(Sketcher.Constraint("Coincident", 27, 2, 24, 1))
sketch6.addConstraint(Sketcher.Constraint("Coincident", 28, 2, 29, 1))
sketch6.addConstraint(Sketcher.Constraint("Coincident", 29, 2, 30, 1))
sketch6.addConstraint(Sketcher.Constraint("Coincident", 30, 2, 31, 1))
sketch6.addConstraint(Sketcher.Constraint("Coincident", 31, 2, 28, 1))
sketch6.addConstraint(Sketcher.Constraint("Coincident", 32, 2, 33, 1))
sketch6.addConstraint(Sketcher.Constraint("Coincident", 33, 2, 34, 1))
sketch6.addConstraint(Sketcher.Constraint("Coincident", 34, 2, 35, 1))
sketch6.addConstraint(Sketcher.Constraint("Coincident", 35, 2, 32, 1))
sketch6.addConstraint(Sketcher.Constraint("Coincident", 36, 2, 37, 1))
sketch6.addConstraint(Sketcher.Constraint("Coincident", 37, 2, 38, 1))
sketch6.addConstraint(Sketcher.Constraint("Coincident", 38, 2, 39, 1))
sketch6.addConstraint(Sketcher.Constraint("Coincident", 39, 2, 36, 1))
sketch6.addConstraint(Sketcher.Constraint("Coincident", 40, 2, 41, 1))
sketch6.addConstraint(Sketcher.Constraint("Coincident", 41, 2, 42, 1))
sketch6.addConstraint(Sketcher.Constraint("Coincident", 42, 2, 43, 1))
sketch6.addConstraint(Sketcher.Constraint("Coincident", 43, 2, 40, 1))
sketch6.addConstraint(Sketcher.Constraint("Coincident", 44, 2, 45, 1))
sketch6.addConstraint(Sketcher.Constraint("Coincident", 45, 2, 46, 1))
sketch6.addConstraint(Sketcher.Constraint("Coincident", 46, 2, 47, 1))
sketch6.addConstraint(Sketcher.Constraint("Coincident", 47, 2, 44, 1))
sketch6.addConstraint(Sketcher.Constraint("Vertical", 0))
sketch6.addConstraint(Sketcher.Constraint("Horizontal", 1))
sketch6.addConstraint(Sketcher.Constraint("Vertical", 2))
sketch6.addConstraint(Sketcher.Constraint("Horizontal", 3))
sketch6.addConstraint(Sketcher.Constraint("Vertical", 4))
sketch6.addConstraint(Sketcher.Constraint("Horizontal", 5))
sketch6.addConstraint(Sketcher.Constraint("Vertical", 6))
sketch6.addConstraint(Sketcher.Constraint("Horizontal", 7))
sketch6.addConstraint(Sketcher.Constraint("Vertical", 8))
sketch6.addConstraint(Sketcher.Constraint("Horizontal", 9))
sketch6.addConstraint(Sketcher.Constraint("Vertical", 10))
sketch6.addConstraint(Sketcher.Constraint("Horizontal", 11))
sketch6.addConstraint(Sketcher.Constraint("Vertical", 12))
sketch6.addConstraint(Sketcher.Constraint("Horizontal", 13))
sketch6.addConstraint(Sketcher.Constraint("Vertical", 14))
sketch6.addConstraint(Sketcher.Constraint("Horizontal", 15))
sketch6.addConstraint(Sketcher.Constraint("Vertical", 16))
sketch6.addConstraint(Sketcher.Constraint("Horizontal", 17))
sketch6.addConstraint(Sketcher.Constraint("Vertical", 18))
sketch6.addConstraint(Sketcher.Constraint("Horizontal", 19))
sketch6.addConstraint(Sketcher.Constraint("Vertical", 20))
sketch6.addConstraint(Sketcher.Constraint("Horizontal", 21))
sketch6.addConstraint(Sketcher.Constraint("Vertical", 22))
sketch6.addConstraint(Sketcher.Constraint("Horizontal", 23))
sketch6.addConstraint(Sketcher.Constraint("Vertical", 24))
sketch6.addConstraint(Sketcher.Constraint("Horizontal", 25))
sketch6.addConstraint(Sketcher.Constraint("Vertical", 26))
sketch6.addConstraint(Sketcher.Constraint("Horizontal", 27))
sketch6.addConstraint(Sketcher.Constraint("Vertical", 28))
sketch6.addConstraint(Sketcher.Constraint("Horizontal", 29))
sketch6.addConstraint(Sketcher.Constraint("Vertical", 30))
sketch6.addConstraint(Sketcher.Constraint("Horizontal", 31))
sketch6.addConstraint(Sketcher.Constraint("Vertical", 32))
sketch6.addConstraint(Sketcher.Constraint("Horizontal", 33))
sketch6.addConstraint(Sketcher.Constraint("Vertical", 34))
sketch6.addConstraint(Sketcher.Constraint("Horizontal", 35))
sketch6.addConstraint(Sketcher.Constraint("Vertical", 36))
sketch6.addConstraint(Sketcher.Constraint("Horizontal", 37))
sketch6.addConstraint(Sketcher.Constraint("Vertical", 38))
sketch6.addConstraint(Sketcher.Constraint("Horizontal", 39))
sketch6.addConstraint(Sketcher.Constraint("Vertical", 40))
sketch6.addConstraint(Sketcher.Constraint("Horizontal", 41))
sketch6.addConstraint(Sketcher.Constraint("Vertical", 42))
sketch6.addConstraint(Sketcher.Constraint("Horizontal", 43))
sketch6.addConstraint(Sketcher.Constraint("Vertical", 44))
sketch6.addConstraint(Sketcher.Constraint("Horizontal", 45))
sketch6.addConstraint(Sketcher.Constraint("Vertical", 46))
sketch6.addConstraint(Sketcher.Constraint("Horizontal", 47))
sketch6.addConstraint(Sketcher.Constraint("Symmetric", 21, 2, 24, 2, -2))
sketch6.addConstraint(Sketcher.Constraint("Symmetric", 23, 2, 26, 2, -2))
sketch6.addConstraint(Sketcher.Constraint("Symmetric", 17, 2, 28, 2, -2))
sketch6.addConstraint(Sketcher.Constraint("Symmetric", 19, 2, 30, 2, -2))
sketch6.addConstraint(Sketcher.Constraint("Symmetric", 13, 2, 32, 2, -2))
sketch6.addConstraint(Sketcher.Constraint("Symmetric", 15, 2, 34, 2, -2))
sketch6.addConstraint(Sketcher.Constraint("Symmetric", 9, 2, 36, 2, -2))
sketch6.addConstraint(Sketcher.Constraint("Symmetric", 11, 2, 38, 2, -2))
sketch6.addConstraint(Sketcher.Constraint("Symmetric", 5, 2, 40, 2, -2))
sketch6.addConstraint(Sketcher.Constraint("Symmetric", 7, 2, 42, 2, -2))
sketch6.addConstraint(Sketcher.Constraint("Symmetric", 1, 2, 44, 2, -2))
sketch6.addConstraint(Sketcher.Constraint("Symmetric", 3, 2, 46, 2, -2))
sketch6.addConstraint(Sketcher.Constraint("Horizontal", 1, 2, 4, 2))
sketch6.addConstraint(Sketcher.Constraint("Horizontal", 3, 2, 6, 2))
sketch6.addConstraint(Sketcher.Constraint("Horizontal", 5, 2, 8, 2))
sketch6.addConstraint(Sketcher.Constraint("Horizontal", 7, 2, 10, 2))
sketch6.addConstraint(Sketcher.Constraint("Horizontal", 9, 2, 12, 2))
sketch6.addConstraint(Sketcher.Constraint("Horizontal", 11, 2, 14, 2))
sketch6.addConstraint(Sketcher.Constraint("Horizontal", 13, 2, 16, 2))
sketch6.addConstraint(Sketcher.Constraint("Horizontal", 15, 2, 18, 2))
sketch6.addConstraint(Sketcher.Constraint("Horizontal", 17, 2, 20, 2))
sketch6.addConstraint(Sketcher.Constraint("Horizontal", 19, 2, 22, 2))
sketch6.addConstraint(Sketcher.Constraint("Equal", 3, 5))
sketch6.addConstraint(Sketcher.Constraint("Equal", 7, 9))
sketch6.addConstraint(Sketcher.Constraint("Equal", 11, 13))
sketch6.addConstraint(Sketcher.Constraint("Equal", 15, 17))
sketch6.addConstraint(Sketcher.Constraint("Equal", 19, 21))
sketch6.addConstraint(Sketcher.Constraint("Equal", 47, 0))
sketch6.addConstraint(Sketcher.Constraint("DistanceX", 1, 1, 1, 2, 1.6))
sketch6.addConstraint(Sketcher.Constraint("DistanceY", 0, 2, -1, 1, 1.4))
sketch6.addConstraint(Sketcher.Constraint("DistanceX", 1, 2, 4, 2, 2.21))
sketch6.addConstraint(Sketcher.Constraint("DistanceX", 5, 2, 8, 2, 2.21))
sketch6.addConstraint(Sketcher.Constraint("DistanceX", 9, 2, 12, 2, 2.21))
sketch6.addConstraint(Sketcher.Constraint("DistanceX", 13, 2, 16, 2, 2.21))
sketch6.addConstraint(Sketcher.Constraint("DistanceX", 17, 2, 20, 2, 2.21))
sketch6.addConstraint(Sketcher.Constraint("DistanceX", 21, 2, 24, 2, 2.21))
pocket3 = doc.addObject("PartDesign::Pocket", "Pocket002")
body.addObject(pocket3)
pocket3.Profile = sketch6
pocket3.Length = 6.2
pocket3.Reversed = True

sketch7 = doc.addObject("Sketcher::SketchObject", "Sketch006")
body.addObject(sketch7)
sketch7.AttachmentSupport = (doc.XZ_Plane, [""])
sketch7.MapMode = "FlatFace"
sketch7.AttachmentOffset = App.Placement(V(0, 0, -7), App.Rotation())
sketch7.addGeometry(Part.Circle(V(-21, 7.2, 0), V(0, 0, 1), 1.3), False)
sketch7.addGeometry(Part.Circle(V(-17.1, 7.2, 0), V(0, 0, 1), 1.3), False)
sketch7.addGeometry(Part.Circle(V(-13.3, 7.2, 0), V(0, 0, 1), 1.3), False)
sketch7.addGeometry(Part.Circle(V(-9.5, 7.2, 0), V(0, 0, 1), 1.3), False)
sketch7.addGeometry(Part.Circle(V(-5.7, 7.2, 0), V(0, 0, 1), 1.3), False)
sketch7.addGeometry(Part.Circle(V(-1.9, 7.2, 0), V(0, 0, 1), 1.3), False)
sketch7.addGeometry(Part.Circle(V(1.9, 7.2, 0), V(0, 0, 1), 1.3), False)
sketch7.addGeometry(Part.Circle(V(5.7, 7.2, 0), V(0, 0, 1), 1.3), False)
sketch7.addGeometry(Part.Circle(V(9.5, 7.2, 0), V(0, 0, 1), 1.3), False)
sketch7.addGeometry(Part.Circle(V(13.3, 7.2, 0), V(0, 0, 1), 1.3), False)
sketch7.addGeometry(Part.Circle(V(17.1, 7.2, 0), V(0, 0, 1), 1.3), False)
sketch7.addGeometry(Part.Circle(V(21, 7.2, 0), V(0, 0, 1), 1.3), False)
sketch7.addConstraint(Sketcher.Constraint("Equal", 0, 1))
sketch7.addConstraint(Sketcher.Constraint("Equal", 1, 2))
sketch7.addConstraint(Sketcher.Constraint("Equal", 2, 3))
sketch7.addConstraint(Sketcher.Constraint("Equal", 3, 4))
sketch7.addConstraint(Sketcher.Constraint("Equal", 4, 5))
sketch7.addConstraint(Sketcher.Constraint("Equal", 5, 6))
sketch7.addConstraint(Sketcher.Constraint("Equal", 6, 7))
sketch7.addConstraint(Sketcher.Constraint("Equal", 7, 8))
sketch7.addConstraint(Sketcher.Constraint("Equal", 8, 9))
sketch7.addConstraint(Sketcher.Constraint("Equal", 9, 10))
sketch7.addConstraint(Sketcher.Constraint("Equal", 10, 11))
sketch7.addConstraint(Sketcher.Constraint("Symmetric", 5, 3, 6, 3, -2))
sketch7.addConstraint(Sketcher.Constraint("Symmetric", 4, 3, 7, 3, -2))
sketch7.addConstraint(Sketcher.Constraint("Symmetric", 3, 3, 8, 3, -2))
sketch7.addConstraint(Sketcher.Constraint("Symmetric", 2, 3, 9, 3, -2))
sketch7.addConstraint(Sketcher.Constraint("Symmetric", 1, 3, 10, 3, -2))
sketch7.addConstraint(Sketcher.Constraint("Symmetric", 0, 3, 11, 3, -2))
sketch7.addConstraint(Sketcher.Constraint("Horizontal", 0, 3, 1, 3))
sketch7.addConstraint(Sketcher.Constraint("Horizontal", 1, 3, 2, 3))
sketch7.addConstraint(Sketcher.Constraint("Horizontal", 2, 3, 3, 3))
sketch7.addConstraint(Sketcher.Constraint("Horizontal", 3, 3, 4, 3))
sketch7.addConstraint(Sketcher.Constraint("Horizontal", 4, 3, 5, 3))
sketch7.addConstraint(Sketcher.Constraint("Diameter", 0, 2.6))
sketch7.addConstraint(Sketcher.Constraint("DistanceY", -1, 1, 0, 3, 7.2))
sketch7.addConstraint(Sketcher.Constraint("DistanceX", 0, 3, 1, 3, 3.81))
sketch7.addConstraint(Sketcher.Constraint("DistanceX", 1, 3, 2, 3, 3.81))
sketch7.addConstraint(Sketcher.Constraint("DistanceX", 2, 3, 3, 3, 3.81))
sketch7.addConstraint(Sketcher.Constraint("DistanceX", 3, 3, 4, 3, 3.81))
sketch7.addConstraint(Sketcher.Constraint("DistanceX", 4, 3, 5, 3, 3.81))
sketch7.addConstraint(Sketcher.Constraint("DistanceX", 5, 3, 6, 3, 3.81))
pocket4 = doc.addObject("PartDesign::Pocket", "Pocket003")
body.addObject(pocket4)
pocket4.Profile = sketch7
pocket4.Length = 3
pocket4.Reversed = True

doc.recompute()
